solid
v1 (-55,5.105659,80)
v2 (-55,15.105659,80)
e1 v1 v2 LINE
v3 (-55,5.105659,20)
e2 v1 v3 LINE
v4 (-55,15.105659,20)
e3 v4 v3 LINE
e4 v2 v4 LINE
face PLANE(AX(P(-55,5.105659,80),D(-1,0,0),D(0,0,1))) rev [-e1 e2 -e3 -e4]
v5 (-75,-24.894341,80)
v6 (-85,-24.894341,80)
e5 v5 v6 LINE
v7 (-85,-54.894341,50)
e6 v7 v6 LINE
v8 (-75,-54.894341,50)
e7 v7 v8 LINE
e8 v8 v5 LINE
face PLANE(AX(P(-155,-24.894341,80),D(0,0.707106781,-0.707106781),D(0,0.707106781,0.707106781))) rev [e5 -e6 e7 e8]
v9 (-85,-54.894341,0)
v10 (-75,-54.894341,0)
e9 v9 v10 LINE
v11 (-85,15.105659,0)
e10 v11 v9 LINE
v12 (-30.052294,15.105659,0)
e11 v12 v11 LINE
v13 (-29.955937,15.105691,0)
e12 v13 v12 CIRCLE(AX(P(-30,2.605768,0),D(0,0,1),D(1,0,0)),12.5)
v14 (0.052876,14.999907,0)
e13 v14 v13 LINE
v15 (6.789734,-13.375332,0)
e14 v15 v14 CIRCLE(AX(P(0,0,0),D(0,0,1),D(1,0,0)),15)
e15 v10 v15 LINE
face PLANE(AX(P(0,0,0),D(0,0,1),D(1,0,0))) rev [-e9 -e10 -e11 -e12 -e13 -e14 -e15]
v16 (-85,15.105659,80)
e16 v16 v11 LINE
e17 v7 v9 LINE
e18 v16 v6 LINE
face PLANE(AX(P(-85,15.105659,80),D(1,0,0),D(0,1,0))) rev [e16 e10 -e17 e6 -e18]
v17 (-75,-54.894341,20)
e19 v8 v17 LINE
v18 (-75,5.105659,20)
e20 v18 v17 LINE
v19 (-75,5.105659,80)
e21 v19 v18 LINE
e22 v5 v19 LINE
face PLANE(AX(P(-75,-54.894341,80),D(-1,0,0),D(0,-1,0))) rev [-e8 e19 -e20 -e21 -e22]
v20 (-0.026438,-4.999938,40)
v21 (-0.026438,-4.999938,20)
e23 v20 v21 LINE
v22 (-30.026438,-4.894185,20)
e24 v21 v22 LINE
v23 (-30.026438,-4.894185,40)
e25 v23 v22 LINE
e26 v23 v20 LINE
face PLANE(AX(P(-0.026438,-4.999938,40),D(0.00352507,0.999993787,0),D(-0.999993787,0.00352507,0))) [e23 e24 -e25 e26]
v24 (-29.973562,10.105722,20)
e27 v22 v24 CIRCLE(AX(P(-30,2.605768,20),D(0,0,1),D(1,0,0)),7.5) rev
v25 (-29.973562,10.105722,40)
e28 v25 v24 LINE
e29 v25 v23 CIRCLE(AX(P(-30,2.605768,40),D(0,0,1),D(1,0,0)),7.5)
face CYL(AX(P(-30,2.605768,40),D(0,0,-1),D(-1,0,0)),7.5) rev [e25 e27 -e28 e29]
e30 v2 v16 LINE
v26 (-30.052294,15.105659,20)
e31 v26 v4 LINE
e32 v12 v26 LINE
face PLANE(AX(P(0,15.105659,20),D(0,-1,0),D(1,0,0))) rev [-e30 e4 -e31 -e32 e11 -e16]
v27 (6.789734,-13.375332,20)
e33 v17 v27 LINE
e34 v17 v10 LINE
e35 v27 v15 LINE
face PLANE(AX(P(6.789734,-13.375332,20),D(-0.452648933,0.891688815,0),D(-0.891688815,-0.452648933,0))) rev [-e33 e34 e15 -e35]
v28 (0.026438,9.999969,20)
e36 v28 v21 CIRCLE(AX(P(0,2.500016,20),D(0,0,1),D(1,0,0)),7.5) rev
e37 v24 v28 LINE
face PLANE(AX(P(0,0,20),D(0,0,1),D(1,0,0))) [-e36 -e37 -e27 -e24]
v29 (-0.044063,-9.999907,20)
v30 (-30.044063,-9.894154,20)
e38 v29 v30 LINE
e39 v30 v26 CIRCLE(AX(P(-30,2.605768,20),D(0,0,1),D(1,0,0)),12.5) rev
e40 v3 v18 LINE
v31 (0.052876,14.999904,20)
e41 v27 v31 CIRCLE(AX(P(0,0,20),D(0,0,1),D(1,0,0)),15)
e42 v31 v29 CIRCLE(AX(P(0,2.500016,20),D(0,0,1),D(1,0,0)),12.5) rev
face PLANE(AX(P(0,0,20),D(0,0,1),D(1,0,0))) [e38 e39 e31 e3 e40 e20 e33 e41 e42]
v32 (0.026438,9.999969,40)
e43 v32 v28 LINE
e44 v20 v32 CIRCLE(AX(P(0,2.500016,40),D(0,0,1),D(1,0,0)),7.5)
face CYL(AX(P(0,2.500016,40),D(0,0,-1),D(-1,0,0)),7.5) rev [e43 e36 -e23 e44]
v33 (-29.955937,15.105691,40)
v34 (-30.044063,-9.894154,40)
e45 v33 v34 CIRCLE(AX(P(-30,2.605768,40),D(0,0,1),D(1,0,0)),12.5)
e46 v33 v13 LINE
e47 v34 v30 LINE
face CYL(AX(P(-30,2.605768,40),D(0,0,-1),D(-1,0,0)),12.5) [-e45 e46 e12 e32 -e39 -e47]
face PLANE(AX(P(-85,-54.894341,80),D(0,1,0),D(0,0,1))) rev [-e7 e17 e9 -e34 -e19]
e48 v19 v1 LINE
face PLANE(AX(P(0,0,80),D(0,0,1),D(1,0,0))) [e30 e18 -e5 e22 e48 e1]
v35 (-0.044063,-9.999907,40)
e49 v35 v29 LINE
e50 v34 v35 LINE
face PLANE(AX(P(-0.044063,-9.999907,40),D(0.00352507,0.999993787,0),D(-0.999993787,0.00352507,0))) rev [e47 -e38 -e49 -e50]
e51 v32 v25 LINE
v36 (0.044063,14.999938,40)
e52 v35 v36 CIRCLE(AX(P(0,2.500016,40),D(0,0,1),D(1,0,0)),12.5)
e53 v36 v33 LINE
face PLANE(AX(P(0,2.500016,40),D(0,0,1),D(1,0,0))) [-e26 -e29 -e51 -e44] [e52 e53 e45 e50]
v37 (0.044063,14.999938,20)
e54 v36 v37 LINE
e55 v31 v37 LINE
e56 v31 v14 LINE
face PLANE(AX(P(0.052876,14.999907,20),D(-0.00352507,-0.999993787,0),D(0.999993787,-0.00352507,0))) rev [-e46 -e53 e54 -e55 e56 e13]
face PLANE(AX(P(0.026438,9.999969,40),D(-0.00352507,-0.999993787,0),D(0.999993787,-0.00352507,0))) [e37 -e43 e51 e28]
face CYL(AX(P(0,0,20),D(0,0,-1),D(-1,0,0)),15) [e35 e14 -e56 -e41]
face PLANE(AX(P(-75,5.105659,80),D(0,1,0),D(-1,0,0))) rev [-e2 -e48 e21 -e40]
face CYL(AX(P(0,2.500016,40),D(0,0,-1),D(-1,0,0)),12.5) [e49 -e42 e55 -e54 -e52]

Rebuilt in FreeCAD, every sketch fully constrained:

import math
import FreeCAD as App
import Part
import Sketcher

doc = App.newDocument("Part")
params = doc.addObject("Spreadsheet::Sheet", "Params")
for row, (alias, value) in enumerate([
    ("sketch1_radius", "15 mm"),
    ("sketch1_width", "20 mm"),
    ("sketch1_height", "10 mm"),
    ("sketch1_height2", "60 mm"),
    ("sketch1_length", "30 mm"),
    ("pad1_length", "20 mm"),
    ("sketch2_width", "30 mm"),
    ("sketch2_width2", "10 mm"),
    ("sketch2_height", "70 mm"),
    ("pad2_length", "80 mm"),
    ("sketch3_width", "30 mm"),
    ("pocket1_length", "80 mm"),
    ("sketch4_radius", "12.5 mm"),
    ("sketch4_radius2", "7.5 mm"),
    ("pad3_length", "40 mm"),
], start=1):
    params.set(f"A{row}", alias)
    params.set(f"B{row}", "=" + value)
    params.setAlias(f"B{row}", alias)

body = doc.addObject("PartDesign::Body", "Body")

sketch1 = doc.addObject("Sketcher::SketchObject", "Sketch")
body.addObject(sketch1)
sketch1.AttachmentSupport = (doc.XY_Plane, [""])
sketch1.MapMode = "FlatFace"
sketch1.addGeometry(Part.LineSegment(App.Vector(0, 15, 0), App.Vector(-30, 15, 0)), False)
sketch1.addGeometry(Part.LineSegment(App.Vector(-30, 15, 0), App.Vector(-55, 15, 0)), False)
sketch1.addGeometry(Part.LineSegment(App.Vector(-55, 15, 0), App.Vector(-55, 5, 0)), False)
sketch1.addGeometry(Part.LineSegment(App.Vector(-55, 5, 0), App.Vector(-75, 5, 0)), False)
sketch1.addGeometry(Part.LineSegment(App.Vector(-75, 5, 0), App.Vector(-75, -55, 0)), False)
sketch1.addGeometry(Part.LineSegment(App.Vector(-75, -55, 0), App.Vector(7, -13, 0)), False)
sketch1.addGeometry(Part.ArcOfCircle(Part.Circle(App.Vector(0, 0, 0), App.Vector(0, 0, 1), 15), math.radians(-63), math.radians(90)), False)
sketch1.addConstraint(Sketcher.Constraint("Coincident", 0, 2, 1, 1))
sketch1.addConstraint(Sketcher.Constraint("Coincident", 1, 2, 2, 1))
sketch1.addConstraint(Sketcher.Constraint("Coincident", 2, 2, 3, 1))
sketch1.addConstraint(Sketcher.Constraint("Coincident", 3, 2, 4, 1))
sketch1.addConstraint(Sketcher.Constraint("Coincident", 4, 2, 5, 1))
sketch1.addConstraint(Sketcher.Constraint("Tangent", 5, 2, 6, 1))
sketch1.addConstraint(Sketcher.Constraint("Tangent", 6, 2, 0, 1))
sketch1.addConstraint(Sketcher.Constraint("Horizontal", 1))
sketch1.addConstraint(Sketcher.Constraint("Vertical", 2))
sketch1.addConstraint(Sketcher.Constraint("Horizontal", 3))
sketch1.addConstraint(Sketcher.Constraint("Vertical", 4))
sketch1.addConstraint(Sketcher.Constraint("Coincident", 6, 3, -1, 1))
sketch1.addConstraint(Sketcher.Constraint("Radius", 6, 15.0))
sketch1.addConstraint(Sketcher.Constraint("DistanceX", 3, 2, 3, 1, 20.0))
sketch1.addConstraint(Sketcher.Constraint("DistanceY", 2, 2, 2, 1, 10.0))
sketch1.addConstraint(Sketcher.Constraint("DistanceY", 4, 2, 4, 1, 60.0))
sketch1.addConstraint(Sketcher.Constraint("Distance", 0, 30.0))
sketch1.addConstraint(Sketcher.Constraint("DistanceX", 1, 2, -1, 1, 55.0))
sketch1.addConstraint(Sketcher.Constraint("DistanceX", 1, 2, 1, 1, 25.053062))
sketch1.setExpression("Constraints[12]", "Params.sketch1_radius")
sketch1.setExpression("Constraints[13]", "Params.sketch1_width")
sketch1.setExpression("Constraints[14]", "Params.sketch1_height")
sketch1.setExpression("Constraints[15]", "Params.sketch1_height2")
sketch1.setExpression("Constraints[16]", "Params.sketch1_length")
pad1 = doc.addObject("PartDesign::Pad", "Pad")
body.addObject(pad1)
pad1.Profile = sketch1
pad1.setExpression("Length", "Params.pad1_length")

sketch2 = doc.addObject("Sketcher::SketchObject", "Sketch001")
body.addObject(sketch2)
sketch2.AttachmentSupport = (doc.XY_Plane, [""])
sketch2.MapMode = "FlatFace"
sketch2.addGeometry(Part.LineSegment(App.Vector(-55, 15, 0), App.Vector(-85, 15, 0)), False)
sketch2.addGeometry(Part.LineSegment(App.Vector(-85, 15, 0), App.Vector(-85, -55, 0)), False)
sketch2.addGeometry(Part.LineSegment(App.Vector(-85, -55, 0), App.Vector(-75, -55, 0)), False)
sketch2.addGeometry(Part.LineSegment(App.Vector(-75, -55, 0), App.Vector(-75, 5, 0)), False)
sketch2.addGeometry(Part.LineSegment(App.Vector(-75, 5, 0), App.Vector(-55, 5, 0)), False)
sketch2.addGeometry(Part.LineSegment(App.Vector(-55, 5, 0), App.Vector(-55, 15, 0)), False)
sketch2.addConstraint(Sketcher.Constraint("Coincident", 0, 2, 1, 1))
sketch2.addConstraint(Sketcher.Constraint("Coincident", 1, 2, 2, 1))
sketch2.addConstraint(Sketcher.Constraint("Coincident", 2, 2, 3, 1))
sketch2.addConstraint(Sketcher.Constraint("Coincident", 3, 2, 4, 1))
sketch2.addConstraint(Sketcher.Constraint("Coincident", 4, 2, 5, 1))
sketch2.addConstraint(Sketcher.Constraint("Coincident", 5, 2, 0, 1))
sketch2.addConstraint(Sketcher.Constraint("Horizontal", 0))
sketch2.addConstraint(Sketcher.Constraint("Vertical", 1))
sketch2.addConstraint(Sketcher.Constraint("Horizontal", 2))
sketch2.addConstraint(Sketcher.Constraint("Vertical", 3))
sketch2.addConstraint(Sketcher.Constraint("Horizontal", 4))
sketch2.addConstraint(Sketcher.Constraint("Vertical", 5))
sketch2.addConstraint(Sketcher.Constraint("Equal", 2, 5))
sketch2.addConstraint(Sketcher.Constraint("DistanceX", 0, 2, 0, 1, 30.0))
sketch2.addConstraint(Sketcher.Constraint("DistanceX", 2, 1, 2, 2, 10.0))
sketch2.addConstraint(Sketcher.Constraint("DistanceY", 1, 2, 1, 1, 70.0))
sketch2.addConstraint(Sketcher.Constraint("DistanceX", 0, 2, -1, 1, 85.0))
sketch2.addConstraint(Sketcher.Constraint("DistanceY", -1, 1, 0, 2, 15.105659))
sketch2.setExpression("Constraints[13]", "Params.sketch2_width")
sketch2.setExpression("Constraints[14]", "Params.sketch2_width2")
sketch2.setExpression("Constraints[15]", "Params.sketch2_height")
pad2 = doc.addObject("PartDesign::Pad", "Pad001")
body.addObject(pad2)
pad2.Profile = sketch2
pad2.setExpression("Length", "Params.pad2_length")

sketch3 = doc.addObject("Sketcher::SketchObject", "Sketch002")
body.addObject(sketch3)
sketch3.AttachmentSupport = (doc.YZ_Plane, [""])
sketch3.MapMode = "FlatFace"
sketch3.AttachmentOffset = App.Placement(App.Vector(0, 0, -75), App.Rotation())
sketch3.addGeometry(Part.LineSegment(App.Vector(-55, 50, 0), App.Vector(-25, 80, 0)), False)
sketch3.addGeometry(Part.LineSegment(App.Vector(-25, 80, 0), App.Vector(-55, 80, 0)), False)
sketch3.addGeometry(Part.LineSegment(App.Vector(-55, 80, 0), App.Vector(-55, 50, 0)), False)
sketch3.addConstraint(Sketcher.Constraint("Coincident", 0, 2, 1, 1))
sketch3.addConstraint(Sketcher.Constraint("Coincident", 1, 2, 2, 1))
sketch3.addConstraint(Sketcher.Constraint("Coincident", 2, 2, 0, 1))
sketch3.addConstraint(Sketcher.Constraint("Horizontal", 1))
sketch3.addConstraint(Sketcher.Constraint("Vertical", 2))
sketch3.addConstraint(Sketcher.Constraint("Equal", 1, 2))
sketch3.addConstraint(Sketcher.Constraint("DistanceX", 1, 2, 1, 1, 30.0))
sketch3.addConstraint(Sketcher.Constraint("DistanceY", -1, 1, 0, 2, 80.0))
sketch3.addConstraint(Sketcher.Constraint("DistanceX", 0, 2, -1, 1, 24.894341))
sketch3.setExpression("Constraints[6]", "Params.sketch3_width")
pocket1 = doc.addObject("PartDesign::Pocket", "Pocket")
body.addObject(pocket1)
pocket1.Profile = sketch3
pocket1.setExpression("Length", "Params.pocket1_length")

sketch4 = doc.addObject("Sketcher::SketchObject", "Sketch003")
body.addObject(sketch4)
sketch4.AttachmentSupport = (doc.XY_Plane, [""])
sketch4.MapMode = "FlatFace"
sketch4.addGeometry(Part.LineSegment(App.Vector(-30, -10, 0), App.Vector(0, -10, 0)), False)
sketch4.addGeometry(Part.ArcOfCircle(Part.Circle(App.Vector(0, 3, 0), App.Vector(0, 0, 1), 12), math.radians(-90), math.radians(90)), False)
sketch4.addGeometry(Part.LineSegment(App.Vector(0, 15, 0), App.Vector(-30, 15, 0)), False)
sketch4.addGeometry(Part.ArcOfCircle(Part.Circle(App.Vector(-30, 3, 0), App.Vector(0, 0, 1), 12), math.radians(90), math.radians(270)), False)
sketch4.addGeometry(Part.LineSegment(App.Vector(0, -5, 0), App.Vector(-30, -5, 0)), False)
sketch4.addGeometry(Part.ArcOfCircle(Part.Circle(App.Vector(-30, 3, 0), App.Vector(0, 0, 1), 8), math.radians(90), math.radians(270)), False)
sketch4.addGeometry(Part.LineSegment(App.Vector(-30, 10, 0), App.Vector(0, 10, 0)), False)
sketch4.addGeometry(Part.ArcOfCircle(Part.Circle(App.Vector(0, 3, 0), App.Vector(0, 0, 1), 8), math.radians(-90), math.radians(90)), False)
sketch4.addConstraint(Sketcher.Constraint("Tangent", 0, 2, 1, 1))
sketch4.addConstraint(Sketcher.Constraint("Tangent", 1, 2, 2, 1))
sketch4.addConstraint(Sketcher.Constraint("Tangent", 2, 2, 3, 1))
sketch4.addConstraint(Sketcher.Constraint("Tangent", 3, 2, 0, 1))
sketch4.addConstraint(Sketcher.Constraint("Tangent", 4, 2, 5, 2))
sketch4.addConstraint(Sketcher.Constraint("Tangent", 5, 1, 6, 1))
sketch4.addConstraint(Sketcher.Constraint("Tangent", 6, 2, 7, 2))
sketch4.addConstraint(Sketcher.Constraint("Tangent", 7, 1, 4, 1))
sketch4.addConstraint(Sketcher.Constraint("Coincident", 5, 3, 3, 3))
sketch4.addConstraint(Sketcher.Constraint("Coincident", 7, 3, 1, 3))
sketch4.addConstraint(Sketcher.Constraint("Equal", 1, 3))
sketch4.addConstraint(Sketcher.Constraint("Equal", 5, 7))
sketch4.addConstraint(Sketcher.Constraint("PointOnObject", 1, 3, -2))
sketch4.addConstraint(Sketcher.Constraint("Radius", 1, 12.5))
sketch4.addConstraint(Sketcher.Constraint("Radius", 5, 7.5))
sketch4.addConstraint(Sketcher.Constraint("DistanceX", 3, 3, -1, 1, 30.0))
sketch4.addConstraint(Sketcher.Constraint("DistanceX", 4, 2, 2, 2, 0.070501))
sketch4.addConstraint(Sketcher.Constraint("DistanceY", -1, 1, 3, 3, 2.605768))
sketch4.setExpression("Constraints[13]", "Params.sketch4_radius")
sketch4.setExpression("Constraints[14]", "Params.sketch4_radius2")
pad3 = doc.addObject("PartDesign::Pad", "Pad002")
body.addObject(pad3)
pad3.Profile = sketch4
pad3.setExpression("Length", "Params.pad3_length")

doc.recompute()
